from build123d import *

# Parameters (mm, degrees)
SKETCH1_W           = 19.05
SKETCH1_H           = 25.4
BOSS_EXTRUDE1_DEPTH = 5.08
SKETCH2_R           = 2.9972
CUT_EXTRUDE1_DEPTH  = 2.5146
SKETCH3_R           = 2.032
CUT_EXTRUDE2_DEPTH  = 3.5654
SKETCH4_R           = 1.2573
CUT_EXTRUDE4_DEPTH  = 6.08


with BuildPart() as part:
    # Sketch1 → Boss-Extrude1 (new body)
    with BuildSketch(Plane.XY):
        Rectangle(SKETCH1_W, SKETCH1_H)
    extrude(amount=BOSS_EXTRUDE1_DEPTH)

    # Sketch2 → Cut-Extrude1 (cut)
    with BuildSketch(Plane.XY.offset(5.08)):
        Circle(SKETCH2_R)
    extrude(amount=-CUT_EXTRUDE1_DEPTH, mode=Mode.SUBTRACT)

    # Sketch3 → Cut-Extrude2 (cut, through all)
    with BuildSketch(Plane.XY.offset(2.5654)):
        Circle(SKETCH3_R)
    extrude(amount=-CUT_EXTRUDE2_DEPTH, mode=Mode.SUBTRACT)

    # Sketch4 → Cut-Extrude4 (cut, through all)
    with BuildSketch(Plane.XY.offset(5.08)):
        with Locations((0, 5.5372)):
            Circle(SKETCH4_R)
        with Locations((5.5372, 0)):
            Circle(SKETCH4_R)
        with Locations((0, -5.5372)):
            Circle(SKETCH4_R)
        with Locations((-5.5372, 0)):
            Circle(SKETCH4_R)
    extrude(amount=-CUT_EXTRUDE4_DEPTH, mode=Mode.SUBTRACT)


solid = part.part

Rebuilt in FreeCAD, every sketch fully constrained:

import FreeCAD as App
import Part
import Sketcher

V = App.Vector
Q = App.Units.Quantity

doc = App.newDocument("Part")
body = doc.addObject("PartDesign::Body", "Body")

# Sketch on XY plane
sketch1 = doc.addObject("Sketcher::SketchObject", "Sketch")
body.addObject(sketch1)
sketch1.AttachmentSupport = (doc.XY_Plane, [""])
sketch1.MapMode = "FlatFace"
sketch1.addGeometry(Part.LineSegment(V(-10, 13, 0), V(-10, -13, 0)), False)
sketch1.addGeometry(Part.LineSegment(V(-10, -13, 0), V(10, -13, 0)), False)
sketch1.addGeometry(Part.LineSegment(V(10, -13, 0), V(10, 13, 0)), False)
sketch1.addGeometry(Part.LineSegment(V(10, 13, 0), V(-10, 13, 0)), False)
sketch1.addConstraint(Sketcher.Constraint("Coincident", 0, 2, 1, 1))
sketch1.addConstraint(Sketcher.Constraint("Coincident", 1, 2, 2, 1))
sketch1.addConstraint(Sketcher.Constraint("Coincident", 2, 2, 3, 1))
sketch1.addConstraint(Sketcher.Constraint("Coincident", 3, 2, 0, 1))
sketch1.addConstraint(Sketcher.Constraint("Vertical", 0))
sketch1.addConstraint(Sketcher.Constraint("Horizontal", 1))
sketch1.addConstraint(Sketcher.Constraint("Vertical", 2))
sketch1.addConstraint(Sketcher.Constraint("Horizontal", 3))
sketch1.addConstraint(Sketcher.Constraint("Symmetric", 0, 2, 2, 2, -1, 1))
sketch1.addConstraint(Sketcher.Constraint("DistanceY", 0, 2, 0, 1, Q("1 in")))
sketch1.addConstraint(Sketcher.Constraint("DistanceX", 1, 1, 1, 2, Q("0.75 in")))
pad1 = doc.addObject("PartDesign::Pad", "Pad")
body.addObject(pad1)
pad1.Profile = sketch1
pad1.Length = Q("0.2 in")

# Sketch on XY plane
sketch2 = doc.addObject("Sketcher::SketchObject", "Sketch001")
body.addObject(sketch2)
sketch2.AttachmentSupport = (doc.XY_Plane, [""])
sketch2.MapMode = "FlatFace"
sketch2.AttachmentOffset = App.Placement(V(0, 0, 0.2 * 25.4), App.Rotation())
sketch2.addGeometry(Part.Circle(V(0, 0, 0), V(0, 0, 1), 3), False)
sketch2.addConstraint(Sketcher.Constraint("Coincident", 0, 3, -1, 1))
sketch2.addConstraint(Sketcher.Constraint("Diameter", 0, Q("0.236 in")))
pocket1 = doc.addObject("PartDesign::Pocket", "Pocket")
body.addObject(pocket1)
pocket1.Profile = sketch2
pocket1.Length = Q("0.099 in")

# Sketch on XY plane
sketch3 = doc.addObject("Sketcher::SketchObject", "Sketch002")
body.addObject(sketch3)
sketch3.AttachmentSupport = (doc.XY_Plane, [""])
sketch3.MapMode = "FlatFace"
sketch3.AttachmentOffset = App.Placement(V(0, 0, 0.101 * 25.4), App.Rotation())
sketch3.addGeometry(Part.Circle(V(0, 0, 0), V(0, 0, 1), 2), False)
sketch3.addConstraint(Sketcher.Constraint("Coincident", 0, 3, -1, 1))
sketch3.addConstraint(Sketcher.Constraint("Diameter", 0, Q("0.16 in")))
pocket2 = doc.addObject("PartDesign::Pocket", "Pocket001")
body.addObject(pocket2)
pocket2.Profile = sketch3
pocket2.Type = "ThroughAll"

# Sketch on XY plane
sketch4 = doc.addObject("Sketcher::SketchObject", "Sketch003")
body.addObject(sketch4)
sketch4.AttachmentSupport = (doc.XY_Plane, [""])
sketch4.MapMode = "FlatFace"
sketch4.AttachmentOffset = App.Placement(V(0, 0, 0.2 * 25.4), App.Rotation())
sketch4.addGeometry(Part.Circle(V(0, 5.5, 0), V(0, 0, 1), 1.3), False)
sketch4.addGeometry(Part.Circle(V(5.5, 0, 0), V(0, 0, 1), 1.3), False)
sketch4.addGeometry(Part.Circle(V(0, -5.5, 0), V(0, 0, 1), 1.3), False)
sketch4.addGeometry(Part.Circle(V(-5.5, 0, 0), V(0, 0, 1), 1.3), False)
sketch4.addConstraint(Sketcher.Constraint("Equal", 0, 1))
sketch4.addConstraint(Sketcher.Constraint("Equal", 1, 2))
sketch4.addConstraint(Sketcher.Constraint("Equal", 2, 3))
sketch4.addConstraint(Sketcher.Constraint("Symmetric", 0, 3, 2, 3, -1, 1))
sketch4.addConstraint(Sketcher.Constraint("Symmetric", 1, 3, 3, 3, -1, 1))
sketch4.addConstraint(Sketcher.Constraint("PointOnObject", 0, 3, -2))
sketch4.addConstraint(Sketcher.Constraint("PointOnObject", 1, 3, -1))
sketch4.addConstraint(Sketcher.Constraint("Diameter", 0, Q("0.099 in")))
sketch4.addConstraint(Sketcher.Constraint("DistanceY", -1, 1, 0, 3, Q("0.218 in")))
sketch4.addConstraint(Sketcher.Constraint("DistanceX", -1, 1, 1, 3, Q("0.218 in")))
pocket3 = doc.addObject("PartDesign::Pocket", "Pocket002")
body.addObject(pocket3)
pocket3.Profile = sketch4
pocket3.Type = "ThroughAll"

doc.recompute()
